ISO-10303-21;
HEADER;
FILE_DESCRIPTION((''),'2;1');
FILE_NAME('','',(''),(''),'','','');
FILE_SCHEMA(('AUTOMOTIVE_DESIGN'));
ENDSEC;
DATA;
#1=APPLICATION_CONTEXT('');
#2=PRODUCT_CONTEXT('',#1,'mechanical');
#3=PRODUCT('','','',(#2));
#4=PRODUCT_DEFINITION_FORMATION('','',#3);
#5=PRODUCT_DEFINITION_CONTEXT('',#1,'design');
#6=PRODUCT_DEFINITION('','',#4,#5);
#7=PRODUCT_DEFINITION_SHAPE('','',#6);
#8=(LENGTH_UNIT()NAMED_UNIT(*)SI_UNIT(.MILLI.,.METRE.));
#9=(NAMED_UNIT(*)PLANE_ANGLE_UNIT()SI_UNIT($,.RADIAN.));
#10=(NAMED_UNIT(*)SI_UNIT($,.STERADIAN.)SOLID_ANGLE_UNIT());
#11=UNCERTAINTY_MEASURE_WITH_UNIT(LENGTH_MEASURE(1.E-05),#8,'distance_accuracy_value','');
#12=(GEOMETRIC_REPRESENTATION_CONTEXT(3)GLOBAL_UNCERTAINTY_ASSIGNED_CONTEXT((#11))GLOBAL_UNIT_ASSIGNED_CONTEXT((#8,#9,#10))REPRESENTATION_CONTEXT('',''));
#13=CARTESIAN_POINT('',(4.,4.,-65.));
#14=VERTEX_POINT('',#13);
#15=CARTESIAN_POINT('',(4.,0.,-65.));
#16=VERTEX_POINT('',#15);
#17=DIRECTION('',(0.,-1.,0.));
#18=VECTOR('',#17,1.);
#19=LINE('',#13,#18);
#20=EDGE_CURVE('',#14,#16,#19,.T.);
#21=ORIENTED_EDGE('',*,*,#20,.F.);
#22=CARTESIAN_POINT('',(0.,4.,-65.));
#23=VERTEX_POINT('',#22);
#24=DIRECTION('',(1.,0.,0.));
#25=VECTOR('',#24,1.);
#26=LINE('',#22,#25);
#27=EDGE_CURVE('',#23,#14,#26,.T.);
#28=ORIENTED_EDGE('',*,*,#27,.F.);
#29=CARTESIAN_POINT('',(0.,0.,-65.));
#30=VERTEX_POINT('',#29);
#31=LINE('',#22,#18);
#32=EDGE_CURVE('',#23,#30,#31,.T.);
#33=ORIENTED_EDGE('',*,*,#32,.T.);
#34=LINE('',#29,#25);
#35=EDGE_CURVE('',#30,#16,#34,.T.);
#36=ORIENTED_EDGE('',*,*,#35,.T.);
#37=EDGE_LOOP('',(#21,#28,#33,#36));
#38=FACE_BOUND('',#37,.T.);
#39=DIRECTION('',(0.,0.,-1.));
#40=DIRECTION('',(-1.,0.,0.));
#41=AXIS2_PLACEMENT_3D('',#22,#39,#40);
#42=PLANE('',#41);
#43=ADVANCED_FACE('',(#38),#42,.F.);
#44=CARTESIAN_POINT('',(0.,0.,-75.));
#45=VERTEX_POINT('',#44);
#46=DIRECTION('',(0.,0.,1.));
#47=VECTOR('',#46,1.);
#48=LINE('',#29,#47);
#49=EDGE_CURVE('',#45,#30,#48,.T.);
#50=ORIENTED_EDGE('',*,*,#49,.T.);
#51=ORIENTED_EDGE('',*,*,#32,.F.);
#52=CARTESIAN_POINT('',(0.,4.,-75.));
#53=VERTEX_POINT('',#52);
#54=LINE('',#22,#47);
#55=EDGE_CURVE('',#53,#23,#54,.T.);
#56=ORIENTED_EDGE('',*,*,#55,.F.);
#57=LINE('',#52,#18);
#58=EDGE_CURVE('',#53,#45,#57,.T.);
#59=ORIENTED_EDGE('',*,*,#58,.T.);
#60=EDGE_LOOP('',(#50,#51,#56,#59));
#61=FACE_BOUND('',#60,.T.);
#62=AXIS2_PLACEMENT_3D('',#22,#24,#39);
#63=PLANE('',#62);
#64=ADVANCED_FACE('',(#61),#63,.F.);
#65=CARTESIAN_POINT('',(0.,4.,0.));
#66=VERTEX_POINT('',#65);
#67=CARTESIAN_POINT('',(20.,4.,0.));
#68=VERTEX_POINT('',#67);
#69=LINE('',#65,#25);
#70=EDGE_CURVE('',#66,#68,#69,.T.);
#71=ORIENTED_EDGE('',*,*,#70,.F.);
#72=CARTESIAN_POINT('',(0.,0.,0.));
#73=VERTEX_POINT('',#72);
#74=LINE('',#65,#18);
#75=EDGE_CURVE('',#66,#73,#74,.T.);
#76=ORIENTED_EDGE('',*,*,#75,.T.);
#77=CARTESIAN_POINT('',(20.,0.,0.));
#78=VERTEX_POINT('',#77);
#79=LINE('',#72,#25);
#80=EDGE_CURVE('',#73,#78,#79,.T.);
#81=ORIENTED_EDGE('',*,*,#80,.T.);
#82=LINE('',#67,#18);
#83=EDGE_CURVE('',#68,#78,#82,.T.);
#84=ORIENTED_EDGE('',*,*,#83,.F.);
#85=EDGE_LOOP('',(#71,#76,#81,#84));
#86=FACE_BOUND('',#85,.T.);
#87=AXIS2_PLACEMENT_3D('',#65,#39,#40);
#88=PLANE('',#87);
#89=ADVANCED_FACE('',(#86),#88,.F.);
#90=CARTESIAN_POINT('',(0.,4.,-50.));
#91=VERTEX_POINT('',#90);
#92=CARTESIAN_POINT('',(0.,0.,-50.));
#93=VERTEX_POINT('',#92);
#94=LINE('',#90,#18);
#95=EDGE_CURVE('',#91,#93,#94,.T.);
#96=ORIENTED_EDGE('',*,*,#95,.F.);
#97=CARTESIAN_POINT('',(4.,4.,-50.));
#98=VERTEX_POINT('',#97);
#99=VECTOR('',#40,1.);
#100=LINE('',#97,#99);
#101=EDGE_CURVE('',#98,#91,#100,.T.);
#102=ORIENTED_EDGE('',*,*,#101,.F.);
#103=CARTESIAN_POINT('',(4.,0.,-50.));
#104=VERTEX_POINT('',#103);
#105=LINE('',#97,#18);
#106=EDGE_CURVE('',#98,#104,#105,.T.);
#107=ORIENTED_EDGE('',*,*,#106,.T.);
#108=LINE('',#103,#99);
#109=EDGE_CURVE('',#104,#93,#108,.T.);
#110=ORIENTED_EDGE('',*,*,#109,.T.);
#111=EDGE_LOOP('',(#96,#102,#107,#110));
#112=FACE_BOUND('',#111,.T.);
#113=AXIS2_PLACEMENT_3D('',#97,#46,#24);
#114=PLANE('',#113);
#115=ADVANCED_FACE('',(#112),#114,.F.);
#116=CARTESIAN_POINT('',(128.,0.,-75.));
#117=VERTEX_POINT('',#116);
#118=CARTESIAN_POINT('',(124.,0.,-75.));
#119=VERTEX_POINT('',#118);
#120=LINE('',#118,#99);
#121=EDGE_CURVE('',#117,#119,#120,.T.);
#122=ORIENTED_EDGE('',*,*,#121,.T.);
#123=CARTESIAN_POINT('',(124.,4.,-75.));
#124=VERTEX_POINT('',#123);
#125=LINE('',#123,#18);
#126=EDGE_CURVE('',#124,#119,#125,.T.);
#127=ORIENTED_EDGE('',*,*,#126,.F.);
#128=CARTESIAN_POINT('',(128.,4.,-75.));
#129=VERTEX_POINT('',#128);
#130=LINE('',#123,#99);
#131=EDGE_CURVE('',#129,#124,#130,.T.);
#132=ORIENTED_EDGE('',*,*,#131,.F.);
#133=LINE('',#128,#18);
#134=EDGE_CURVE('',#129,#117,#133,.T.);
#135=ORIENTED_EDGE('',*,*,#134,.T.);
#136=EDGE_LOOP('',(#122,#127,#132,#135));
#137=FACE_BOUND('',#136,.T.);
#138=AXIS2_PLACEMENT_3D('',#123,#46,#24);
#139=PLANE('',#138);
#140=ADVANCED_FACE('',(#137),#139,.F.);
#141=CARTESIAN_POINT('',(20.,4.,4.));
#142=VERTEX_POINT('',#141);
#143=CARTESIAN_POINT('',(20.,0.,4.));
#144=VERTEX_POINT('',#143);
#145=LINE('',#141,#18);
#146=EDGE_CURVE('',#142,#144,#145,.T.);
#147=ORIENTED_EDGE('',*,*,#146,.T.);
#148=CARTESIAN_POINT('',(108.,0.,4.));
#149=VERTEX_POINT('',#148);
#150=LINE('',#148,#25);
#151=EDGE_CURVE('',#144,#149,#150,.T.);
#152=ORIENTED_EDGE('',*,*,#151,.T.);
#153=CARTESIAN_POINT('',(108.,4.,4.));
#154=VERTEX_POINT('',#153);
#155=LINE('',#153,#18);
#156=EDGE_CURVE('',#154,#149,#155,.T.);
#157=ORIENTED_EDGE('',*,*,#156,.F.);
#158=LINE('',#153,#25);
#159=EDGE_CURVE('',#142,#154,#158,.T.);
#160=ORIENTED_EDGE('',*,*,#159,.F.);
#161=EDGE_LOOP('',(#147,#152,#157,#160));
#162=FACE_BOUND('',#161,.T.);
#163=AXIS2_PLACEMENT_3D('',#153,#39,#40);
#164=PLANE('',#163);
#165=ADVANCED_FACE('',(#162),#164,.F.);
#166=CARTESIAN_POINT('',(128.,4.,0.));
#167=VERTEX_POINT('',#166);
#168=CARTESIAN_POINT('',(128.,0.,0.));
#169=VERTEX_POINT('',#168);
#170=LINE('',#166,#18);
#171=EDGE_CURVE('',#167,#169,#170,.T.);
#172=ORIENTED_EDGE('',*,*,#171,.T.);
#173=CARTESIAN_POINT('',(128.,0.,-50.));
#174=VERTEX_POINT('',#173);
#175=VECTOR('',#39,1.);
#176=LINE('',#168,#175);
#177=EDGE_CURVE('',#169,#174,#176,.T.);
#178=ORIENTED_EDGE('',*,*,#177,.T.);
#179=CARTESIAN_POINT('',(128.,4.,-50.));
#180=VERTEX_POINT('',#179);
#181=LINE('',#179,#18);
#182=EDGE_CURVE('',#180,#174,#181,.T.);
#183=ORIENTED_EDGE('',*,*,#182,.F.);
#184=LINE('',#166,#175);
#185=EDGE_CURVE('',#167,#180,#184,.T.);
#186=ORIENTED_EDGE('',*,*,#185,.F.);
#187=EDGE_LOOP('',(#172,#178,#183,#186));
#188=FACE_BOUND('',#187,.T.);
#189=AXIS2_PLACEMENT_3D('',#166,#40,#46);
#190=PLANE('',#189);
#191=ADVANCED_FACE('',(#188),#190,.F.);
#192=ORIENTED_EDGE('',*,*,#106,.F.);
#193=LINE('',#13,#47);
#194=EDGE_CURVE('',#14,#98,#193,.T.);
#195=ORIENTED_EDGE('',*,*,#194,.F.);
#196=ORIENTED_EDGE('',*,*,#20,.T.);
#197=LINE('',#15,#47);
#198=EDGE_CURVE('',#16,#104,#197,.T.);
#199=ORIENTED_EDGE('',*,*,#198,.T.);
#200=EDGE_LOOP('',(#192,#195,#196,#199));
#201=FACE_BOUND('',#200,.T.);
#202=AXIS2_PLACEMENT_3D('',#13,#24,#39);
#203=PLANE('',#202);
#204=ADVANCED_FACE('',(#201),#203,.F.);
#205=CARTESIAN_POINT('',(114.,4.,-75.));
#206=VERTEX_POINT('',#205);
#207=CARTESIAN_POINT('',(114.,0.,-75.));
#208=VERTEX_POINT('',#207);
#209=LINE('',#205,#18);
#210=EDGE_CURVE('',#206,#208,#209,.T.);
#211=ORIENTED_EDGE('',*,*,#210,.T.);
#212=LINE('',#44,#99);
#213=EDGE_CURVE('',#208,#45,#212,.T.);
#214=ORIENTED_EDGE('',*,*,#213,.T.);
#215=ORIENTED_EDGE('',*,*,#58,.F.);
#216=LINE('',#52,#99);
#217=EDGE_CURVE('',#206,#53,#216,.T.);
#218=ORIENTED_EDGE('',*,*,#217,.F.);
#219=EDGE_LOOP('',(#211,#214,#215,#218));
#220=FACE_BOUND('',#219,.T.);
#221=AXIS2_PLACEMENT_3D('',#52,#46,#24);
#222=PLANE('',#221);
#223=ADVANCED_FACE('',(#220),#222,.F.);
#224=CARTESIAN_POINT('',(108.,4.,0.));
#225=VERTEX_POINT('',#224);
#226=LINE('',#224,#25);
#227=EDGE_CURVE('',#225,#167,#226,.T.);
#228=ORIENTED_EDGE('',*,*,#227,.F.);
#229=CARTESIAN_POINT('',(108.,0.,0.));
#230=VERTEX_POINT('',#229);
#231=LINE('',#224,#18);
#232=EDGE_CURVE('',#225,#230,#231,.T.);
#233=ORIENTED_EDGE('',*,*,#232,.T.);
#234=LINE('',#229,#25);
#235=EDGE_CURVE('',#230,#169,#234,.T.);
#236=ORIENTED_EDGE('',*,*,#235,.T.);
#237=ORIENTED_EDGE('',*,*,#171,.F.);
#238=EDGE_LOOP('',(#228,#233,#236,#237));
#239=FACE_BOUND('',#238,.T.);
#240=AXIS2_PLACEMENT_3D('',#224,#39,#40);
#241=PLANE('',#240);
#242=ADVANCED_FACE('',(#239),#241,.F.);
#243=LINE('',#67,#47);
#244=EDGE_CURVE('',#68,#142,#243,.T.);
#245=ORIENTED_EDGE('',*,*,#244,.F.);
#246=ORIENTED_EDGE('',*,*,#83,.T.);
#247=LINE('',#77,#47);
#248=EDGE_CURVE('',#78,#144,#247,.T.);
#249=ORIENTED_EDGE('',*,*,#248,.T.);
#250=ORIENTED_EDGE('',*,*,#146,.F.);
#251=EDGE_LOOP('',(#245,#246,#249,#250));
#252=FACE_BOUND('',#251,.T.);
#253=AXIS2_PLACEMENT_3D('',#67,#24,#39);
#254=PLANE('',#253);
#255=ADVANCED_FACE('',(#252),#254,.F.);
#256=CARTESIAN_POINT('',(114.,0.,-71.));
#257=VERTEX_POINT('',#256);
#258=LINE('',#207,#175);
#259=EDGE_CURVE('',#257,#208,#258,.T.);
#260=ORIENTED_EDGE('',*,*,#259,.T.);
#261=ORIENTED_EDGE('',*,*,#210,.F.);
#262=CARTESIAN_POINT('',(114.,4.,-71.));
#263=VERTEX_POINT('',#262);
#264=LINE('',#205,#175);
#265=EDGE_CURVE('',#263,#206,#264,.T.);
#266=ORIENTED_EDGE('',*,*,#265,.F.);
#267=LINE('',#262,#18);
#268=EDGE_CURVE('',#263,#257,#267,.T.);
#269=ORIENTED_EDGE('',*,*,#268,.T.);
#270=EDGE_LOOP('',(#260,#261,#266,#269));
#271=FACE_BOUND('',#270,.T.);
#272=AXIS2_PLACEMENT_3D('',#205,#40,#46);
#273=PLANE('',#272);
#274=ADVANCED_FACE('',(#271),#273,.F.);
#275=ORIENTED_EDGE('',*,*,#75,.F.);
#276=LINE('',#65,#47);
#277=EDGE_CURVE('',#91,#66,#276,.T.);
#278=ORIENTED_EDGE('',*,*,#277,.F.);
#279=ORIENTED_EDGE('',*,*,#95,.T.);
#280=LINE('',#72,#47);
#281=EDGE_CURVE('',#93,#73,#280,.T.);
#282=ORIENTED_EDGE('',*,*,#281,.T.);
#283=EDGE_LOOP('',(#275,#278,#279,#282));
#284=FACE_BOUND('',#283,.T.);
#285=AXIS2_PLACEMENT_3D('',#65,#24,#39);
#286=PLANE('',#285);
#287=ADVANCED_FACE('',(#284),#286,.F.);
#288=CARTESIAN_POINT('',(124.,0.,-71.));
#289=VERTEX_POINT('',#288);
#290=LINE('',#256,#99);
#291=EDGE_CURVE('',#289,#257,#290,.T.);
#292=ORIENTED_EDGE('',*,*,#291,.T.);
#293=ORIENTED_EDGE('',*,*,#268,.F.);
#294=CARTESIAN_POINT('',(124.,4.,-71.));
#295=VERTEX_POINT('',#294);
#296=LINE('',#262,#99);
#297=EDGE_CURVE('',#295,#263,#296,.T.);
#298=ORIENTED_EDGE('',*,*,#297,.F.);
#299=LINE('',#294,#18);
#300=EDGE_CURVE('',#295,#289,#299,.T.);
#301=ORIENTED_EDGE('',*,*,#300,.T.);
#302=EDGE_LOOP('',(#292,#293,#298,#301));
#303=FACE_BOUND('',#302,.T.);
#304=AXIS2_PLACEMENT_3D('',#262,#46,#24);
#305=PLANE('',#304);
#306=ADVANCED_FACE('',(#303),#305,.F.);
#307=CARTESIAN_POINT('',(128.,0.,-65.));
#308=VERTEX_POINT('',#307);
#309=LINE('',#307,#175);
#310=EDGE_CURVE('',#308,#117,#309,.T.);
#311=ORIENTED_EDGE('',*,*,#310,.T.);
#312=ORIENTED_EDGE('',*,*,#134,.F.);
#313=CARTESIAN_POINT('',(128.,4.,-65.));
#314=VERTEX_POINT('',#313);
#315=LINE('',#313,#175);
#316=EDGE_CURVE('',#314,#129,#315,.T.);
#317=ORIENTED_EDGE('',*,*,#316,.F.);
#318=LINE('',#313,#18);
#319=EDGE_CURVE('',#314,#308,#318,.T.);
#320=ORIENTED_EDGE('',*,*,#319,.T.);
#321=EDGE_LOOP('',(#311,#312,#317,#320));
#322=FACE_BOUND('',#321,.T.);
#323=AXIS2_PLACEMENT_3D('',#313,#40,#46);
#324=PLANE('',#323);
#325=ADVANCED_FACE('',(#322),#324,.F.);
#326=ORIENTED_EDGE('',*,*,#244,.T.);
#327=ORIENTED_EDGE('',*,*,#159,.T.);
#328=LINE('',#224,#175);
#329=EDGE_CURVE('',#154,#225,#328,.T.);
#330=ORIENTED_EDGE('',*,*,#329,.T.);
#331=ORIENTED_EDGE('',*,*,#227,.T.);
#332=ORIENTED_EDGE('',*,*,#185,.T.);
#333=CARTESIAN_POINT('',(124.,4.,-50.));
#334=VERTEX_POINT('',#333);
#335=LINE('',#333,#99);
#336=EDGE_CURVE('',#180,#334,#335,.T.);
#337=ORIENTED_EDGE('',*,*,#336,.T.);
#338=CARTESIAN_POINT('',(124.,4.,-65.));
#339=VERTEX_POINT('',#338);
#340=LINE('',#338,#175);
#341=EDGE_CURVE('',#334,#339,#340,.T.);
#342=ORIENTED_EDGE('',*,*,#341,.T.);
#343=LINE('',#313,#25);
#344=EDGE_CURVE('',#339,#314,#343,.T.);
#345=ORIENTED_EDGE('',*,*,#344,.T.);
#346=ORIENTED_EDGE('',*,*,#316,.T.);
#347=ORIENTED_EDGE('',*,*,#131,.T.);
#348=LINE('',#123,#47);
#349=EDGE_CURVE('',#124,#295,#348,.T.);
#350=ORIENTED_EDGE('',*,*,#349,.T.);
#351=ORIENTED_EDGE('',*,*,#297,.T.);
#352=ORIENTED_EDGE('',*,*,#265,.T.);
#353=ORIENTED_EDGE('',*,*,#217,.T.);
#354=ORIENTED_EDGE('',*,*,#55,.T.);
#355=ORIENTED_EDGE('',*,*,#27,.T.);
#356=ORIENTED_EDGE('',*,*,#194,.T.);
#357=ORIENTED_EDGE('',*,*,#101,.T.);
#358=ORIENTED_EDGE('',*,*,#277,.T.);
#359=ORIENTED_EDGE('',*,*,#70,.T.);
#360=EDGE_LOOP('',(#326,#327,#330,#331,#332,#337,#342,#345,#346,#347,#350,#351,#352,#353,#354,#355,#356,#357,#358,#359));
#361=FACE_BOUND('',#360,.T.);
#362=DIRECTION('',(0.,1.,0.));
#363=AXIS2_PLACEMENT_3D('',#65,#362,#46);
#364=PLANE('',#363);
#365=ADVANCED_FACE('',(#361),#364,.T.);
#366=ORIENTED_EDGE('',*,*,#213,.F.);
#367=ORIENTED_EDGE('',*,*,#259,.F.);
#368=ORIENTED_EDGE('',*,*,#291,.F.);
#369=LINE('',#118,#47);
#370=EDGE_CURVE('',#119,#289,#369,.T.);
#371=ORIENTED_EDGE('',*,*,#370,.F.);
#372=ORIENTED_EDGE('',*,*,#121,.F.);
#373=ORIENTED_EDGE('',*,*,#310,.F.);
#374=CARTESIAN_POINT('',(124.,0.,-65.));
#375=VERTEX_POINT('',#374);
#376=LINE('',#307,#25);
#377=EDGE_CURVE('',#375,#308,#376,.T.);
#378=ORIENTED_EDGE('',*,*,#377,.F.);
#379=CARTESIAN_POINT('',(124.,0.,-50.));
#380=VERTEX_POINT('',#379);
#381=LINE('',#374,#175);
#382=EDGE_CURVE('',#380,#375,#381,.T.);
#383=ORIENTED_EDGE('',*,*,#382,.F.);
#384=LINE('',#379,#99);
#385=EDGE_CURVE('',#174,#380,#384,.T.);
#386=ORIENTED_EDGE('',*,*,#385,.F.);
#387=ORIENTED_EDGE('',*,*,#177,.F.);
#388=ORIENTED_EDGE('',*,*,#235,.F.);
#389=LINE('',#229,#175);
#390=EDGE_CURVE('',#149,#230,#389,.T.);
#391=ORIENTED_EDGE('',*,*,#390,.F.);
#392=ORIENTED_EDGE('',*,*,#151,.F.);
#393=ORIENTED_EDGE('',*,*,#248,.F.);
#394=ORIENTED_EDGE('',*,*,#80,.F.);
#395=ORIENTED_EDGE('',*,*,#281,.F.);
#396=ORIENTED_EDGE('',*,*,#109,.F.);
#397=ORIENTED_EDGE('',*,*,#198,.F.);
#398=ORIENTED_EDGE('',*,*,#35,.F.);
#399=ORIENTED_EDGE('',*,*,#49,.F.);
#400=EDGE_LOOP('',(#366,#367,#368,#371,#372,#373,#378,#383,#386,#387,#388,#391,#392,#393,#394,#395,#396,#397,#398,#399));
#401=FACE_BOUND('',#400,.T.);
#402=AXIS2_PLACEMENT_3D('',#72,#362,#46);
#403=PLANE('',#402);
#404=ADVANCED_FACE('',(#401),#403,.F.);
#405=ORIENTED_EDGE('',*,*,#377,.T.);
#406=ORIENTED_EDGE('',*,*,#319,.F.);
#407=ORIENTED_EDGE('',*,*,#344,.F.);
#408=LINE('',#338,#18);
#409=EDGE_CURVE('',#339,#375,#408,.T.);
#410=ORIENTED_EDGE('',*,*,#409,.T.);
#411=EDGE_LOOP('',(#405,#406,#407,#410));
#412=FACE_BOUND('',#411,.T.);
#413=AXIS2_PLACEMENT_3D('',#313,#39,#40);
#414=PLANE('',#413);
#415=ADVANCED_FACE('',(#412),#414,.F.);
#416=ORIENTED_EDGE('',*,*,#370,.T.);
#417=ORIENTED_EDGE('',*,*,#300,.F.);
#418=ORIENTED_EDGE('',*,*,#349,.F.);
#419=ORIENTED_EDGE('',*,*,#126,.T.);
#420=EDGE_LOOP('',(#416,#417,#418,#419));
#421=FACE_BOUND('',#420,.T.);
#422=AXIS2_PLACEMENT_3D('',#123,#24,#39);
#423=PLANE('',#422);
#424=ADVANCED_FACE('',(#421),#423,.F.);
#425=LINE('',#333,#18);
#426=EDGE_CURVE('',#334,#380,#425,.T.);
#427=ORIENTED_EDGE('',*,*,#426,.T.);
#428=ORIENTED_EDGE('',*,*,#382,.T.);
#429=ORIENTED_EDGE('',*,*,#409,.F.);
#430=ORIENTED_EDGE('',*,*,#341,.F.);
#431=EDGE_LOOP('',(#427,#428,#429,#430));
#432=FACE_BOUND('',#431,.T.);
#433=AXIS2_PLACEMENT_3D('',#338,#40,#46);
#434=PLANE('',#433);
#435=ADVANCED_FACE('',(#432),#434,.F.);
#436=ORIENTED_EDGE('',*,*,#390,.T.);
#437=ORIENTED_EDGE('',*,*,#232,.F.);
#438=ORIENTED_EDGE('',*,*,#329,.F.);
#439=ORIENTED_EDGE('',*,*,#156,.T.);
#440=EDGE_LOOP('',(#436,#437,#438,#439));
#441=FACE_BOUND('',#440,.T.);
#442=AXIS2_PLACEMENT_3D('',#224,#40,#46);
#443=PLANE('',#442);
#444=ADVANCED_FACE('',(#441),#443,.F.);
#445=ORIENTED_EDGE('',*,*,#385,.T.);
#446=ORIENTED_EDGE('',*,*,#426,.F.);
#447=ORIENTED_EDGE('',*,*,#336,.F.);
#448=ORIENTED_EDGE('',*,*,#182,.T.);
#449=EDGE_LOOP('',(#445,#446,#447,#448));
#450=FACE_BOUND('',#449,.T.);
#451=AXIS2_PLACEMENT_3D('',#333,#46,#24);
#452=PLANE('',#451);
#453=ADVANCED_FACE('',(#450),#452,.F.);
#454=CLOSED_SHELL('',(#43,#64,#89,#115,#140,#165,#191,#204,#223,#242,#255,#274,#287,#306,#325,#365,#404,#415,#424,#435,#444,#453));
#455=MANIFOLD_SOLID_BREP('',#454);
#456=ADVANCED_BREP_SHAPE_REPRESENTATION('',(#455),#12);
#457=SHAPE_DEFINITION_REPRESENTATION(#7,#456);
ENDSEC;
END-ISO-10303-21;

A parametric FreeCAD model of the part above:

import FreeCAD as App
import Part
import Sketcher

V = App.Vector

doc = App.newDocument("Part")
params = doc.addObject("Spreadsheet::Sheet", "Params")
for row, (alias, value) in enumerate([
    ("sketch1_width", "4 mm"),
    ("sketch1_width2", "20 mm"),
    ("sketch1_width3", "88 mm"),
    ("sketch1_width4", "10 mm"),
    ("sketch1_height", "15 mm"),
    ("pad1_length", "4 mm"),
], start=1):
    params.set(f"A{row}", alias)
    params.set(f"B{row}", "=" + value)
    params.setAlias(f"B{row}", alias)

body = doc.addObject("PartDesign::Body", "Body")

sketch1 = body.newObject("Sketcher::SketchObject", "Sketch")
sketch1.AttachmentSupport = (doc.getObject("XZ_Plane"), [""])
sketch1.MapMode = "FlatFace"
sketch1.addGeometry([
    Part.LineSegment(V(0, -65, 0), V(4, -65, 0)),
    Part.LineSegment(V(4, -65, 0), V(4, -50, 0)),
    Part.LineSegment(V(4, -50, 0), V(0, -50, 0)),
    Part.LineSegment(V(0, -50, 0), V(0, 0, 0)),
    Part.LineSegment(V(0, 0, 0), V(20, 0, 0)),
    Part.LineSegment(V(20, 0, 0), V(20, 4, 0)),
    Part.LineSegment(V(20, 4, 0), V(108, 4, 0)),
    Part.LineSegment(V(108, 4, 0), V(108, 0, 0)),
    Part.LineSegment(V(108, 0, 0), V(128, 0, 0)),
    Part.LineSegment(V(128, 0, 0), V(128, -50, 0)),
    Part.LineSegment(V(128, -50, 0), V(124, -50, 0)),
    Part.LineSegment(V(124, -50, 0), V(124, -65, 0)),
    Part.LineSegment(V(124, -65, 0), V(128, -65, 0)),
    Part.LineSegment(V(128, -65, 0), V(128, -75, 0)),
    Part.LineSegment(V(128, -75, 0), V(124, -75, 0)),
    Part.LineSegment(V(124, -75, 0), V(124, -71, 0)),
    Part.LineSegment(V(124, -71, 0), V(114, -71, 0)),
    Part.LineSegment(V(114, -71, 0), V(114, -75, 0)),
    Part.LineSegment(V(114, -75, 0), V(0, -75, 0)),
    Part.LineSegment(V(0, -75, 0), V(0, -65, 0)),
], False)
sketch1.addConstraint([
    Sketcher.Constraint("Coincident", 0, 2, 1, 1),
    Sketcher.Constraint("Coincident", 1, 2, 2, 1),
    Sketcher.Constraint("Coincident", 2, 2, 3, 1),
    Sketcher.Constraint("Coincident", 3, 2, 4, 1),
    Sketcher.Constraint("Coincident", 4, 2, 5, 1),
    Sketcher.Constraint("Coincident", 5, 2, 6, 1),
    Sketcher.Constraint("Coincident", 6, 2, 7, 1),
    Sketcher.Constraint("Coincident", 7, 2, 8, 1),
    Sketcher.Constraint("Coincident", 8, 2, 9, 1),
    Sketcher.Constraint("Coincident", 9, 2, 10, 1),
    Sketcher.Constraint("Coincident", 10, 2, 11, 1),
    Sketcher.Constraint("Coincident", 11, 2, 12, 1),
    Sketcher.Constraint("Coincident", 12, 2, 13, 1),
    Sketcher.Constraint("Coincident", 13, 2, 14, 1),
    Sketcher.Constraint("Coincident", 14, 2, 15, 1),
    Sketcher.Constraint("Coincident", 15, 2, 16, 1),
    Sketcher.Constraint("Coincident", 16, 2, 17, 1),
    Sketcher.Constraint("Coincident", 17, 2, 18, 1),
    Sketcher.Constraint("Coincident", 18, 2, 19, 1),
    Sketcher.Constraint("Coincident", 19, 2, 0, 1),
    Sketcher.Constraint("Horizontal", 0),
    Sketcher.Constraint("Vertical", 1),
    Sketcher.Constraint("Horizontal", 2),
    Sketcher.Constraint("Vertical", 3),
    Sketcher.Constraint("Horizontal", 4),
    Sketcher.Constraint("Vertical", 5),
    Sketcher.Constraint("Horizontal", 6),
    Sketcher.Constraint("Vertical", 7),
    Sketcher.Constraint("Horizontal", 8),
    Sketcher.Constraint("Vertical", 9),
    Sketcher.Constraint("Horizontal", 10),
    Sketcher.Constraint("Vertical", 11),
    Sketcher.Constraint("Horizontal", 12),
    Sketcher.Constraint("Vertical", 13),
    Sketcher.Constraint("Horizontal", 14),
    Sketcher.Constraint("Vertical", 15),
    Sketcher.Constraint("Horizontal", 16),
    Sketcher.Constraint("Vertical", 17),
    Sketcher.Constraint("Horizontal", 18),
    Sketcher.Constraint("Vertical", 19),
    Sketcher.Constraint("Coincident", 3, 2, -1, 1),
    Sketcher.Constraint("PointOnObject", 7, 2, -1),
    Sketcher.Constraint("PointOnObject", 18, 2, -2),
    Sketcher.Constraint("Horizontal", 2, 2, 9, 2),
    Sketcher.Constraint("Horizontal", 0, 2, 11, 2),
    Sketcher.Constraint("Horizontal", 14, 2, 17, 2),
    Sketcher.Constraint("Vertical", 9, 2, 12, 2),
    Sketcher.Constraint("Vertical", 11, 2, 14, 2),
    Sketcher.Constraint("Equal", 4, 8),
    Sketcher.Constraint("Equal", 2, 10),
    Sketcher.Constraint("Equal", 14, 5),
    Sketcher.Constraint("Equal", 16, 13),
    Sketcher.Constraint("Equal", 7, 15),
    Sketcher.Constraint("DistanceX", 0, 1, 0, 2, 4.0),
    Sketcher.Constraint("DistanceX", 4, 1, 4, 2, 20.0),
    Sketcher.Constraint("DistanceX", 6, 1, 6, 2, 88.0),
    Sketcher.Constraint("DistanceX", 16, 2, 16, 1, 10.0),
    Sketcher.Constraint("DistanceY", 1, 1, 1, 2, 15.0),
    Sketcher.Constraint("DistanceY", 3, 1, 3, 2, 50.0),
])
sketch1.setExpression("Constraints[53]", "Params.sketch1_width")
sketch1.setExpression("Constraints[54]", "Params.sketch1_width2")
sketch1.setExpression("Constraints[55]", "Params.sketch1_width3")
sketch1.setExpression("Constraints[56]", "Params.sketch1_width4")
sketch1.setExpression("Constraints[57]", "Params.sketch1_height")
pad1 = body.newObject("PartDesign::Pad", "Pad")
pad1.Profile = sketch1
pad1.setExpression("Length", "Params.pad1_length")
pad1.Reversed = True

doc.recompute()
